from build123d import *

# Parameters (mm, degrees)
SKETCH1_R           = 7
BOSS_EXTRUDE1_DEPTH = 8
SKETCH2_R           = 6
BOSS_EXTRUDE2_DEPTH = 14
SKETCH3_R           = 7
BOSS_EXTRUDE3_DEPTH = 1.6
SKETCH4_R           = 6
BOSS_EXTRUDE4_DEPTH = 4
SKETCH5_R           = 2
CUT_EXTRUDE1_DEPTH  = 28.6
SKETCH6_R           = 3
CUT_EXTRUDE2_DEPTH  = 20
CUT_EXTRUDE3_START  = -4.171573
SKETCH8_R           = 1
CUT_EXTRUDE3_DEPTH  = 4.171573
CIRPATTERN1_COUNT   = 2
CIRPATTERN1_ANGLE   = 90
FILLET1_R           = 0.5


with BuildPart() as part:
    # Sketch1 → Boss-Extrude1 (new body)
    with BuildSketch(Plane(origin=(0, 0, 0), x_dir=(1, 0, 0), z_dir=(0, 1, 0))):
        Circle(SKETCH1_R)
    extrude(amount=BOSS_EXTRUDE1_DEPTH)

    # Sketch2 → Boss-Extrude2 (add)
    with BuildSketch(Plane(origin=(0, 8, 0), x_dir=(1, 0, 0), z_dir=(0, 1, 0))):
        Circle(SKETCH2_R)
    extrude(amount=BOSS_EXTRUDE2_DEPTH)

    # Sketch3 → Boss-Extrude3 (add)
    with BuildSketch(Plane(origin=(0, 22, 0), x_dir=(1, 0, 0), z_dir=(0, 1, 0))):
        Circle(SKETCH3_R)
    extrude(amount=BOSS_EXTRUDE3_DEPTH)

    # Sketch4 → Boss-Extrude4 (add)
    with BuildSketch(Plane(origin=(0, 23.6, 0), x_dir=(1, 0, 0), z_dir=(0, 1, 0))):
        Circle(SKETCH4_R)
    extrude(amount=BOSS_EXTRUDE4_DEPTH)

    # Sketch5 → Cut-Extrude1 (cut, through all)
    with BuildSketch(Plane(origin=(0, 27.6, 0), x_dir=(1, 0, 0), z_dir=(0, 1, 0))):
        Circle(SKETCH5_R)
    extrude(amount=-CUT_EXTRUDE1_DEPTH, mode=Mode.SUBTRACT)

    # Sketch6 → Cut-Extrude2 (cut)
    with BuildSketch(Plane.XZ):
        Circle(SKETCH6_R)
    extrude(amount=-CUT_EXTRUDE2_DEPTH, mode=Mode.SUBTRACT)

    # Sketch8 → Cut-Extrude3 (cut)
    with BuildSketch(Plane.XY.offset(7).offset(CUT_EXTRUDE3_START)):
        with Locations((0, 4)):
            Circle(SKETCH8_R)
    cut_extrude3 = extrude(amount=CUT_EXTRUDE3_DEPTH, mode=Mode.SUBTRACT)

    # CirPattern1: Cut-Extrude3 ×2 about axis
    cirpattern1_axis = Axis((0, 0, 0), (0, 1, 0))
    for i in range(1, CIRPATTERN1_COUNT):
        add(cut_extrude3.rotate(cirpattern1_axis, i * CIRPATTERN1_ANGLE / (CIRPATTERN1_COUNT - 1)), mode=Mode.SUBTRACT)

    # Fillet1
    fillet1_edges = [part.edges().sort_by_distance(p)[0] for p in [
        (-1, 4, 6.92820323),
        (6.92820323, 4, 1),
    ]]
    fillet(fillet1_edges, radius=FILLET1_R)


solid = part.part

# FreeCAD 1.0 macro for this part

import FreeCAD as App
import Part
import Sketcher
from FreeCAD import Vector


def edges_at(feature, points):
    """Names of the edges that pass closest to the given points."""
    edges = feature.Shape.Edges
    near = lambda p: min(range(len(edges)), key=lambda i: edges[i].distToShape(Part.Vertex(*p))[0])
    return sorted({f"Edge{near(p) + 1}" for p in points})

doc = App.newDocument("Part")
body = doc.addObject("PartDesign::Body", "Body")

# Sketch on XZ plane
sketch1 = body.newObject("Sketcher::SketchObject", "Sketch")
sketch1.AttachmentSupport = (doc.getObject("XZ_Plane"), [""])
sketch1.MapMode = "FlatFace"
sketch1.addGeometry(Part.Circle(Vector(0, 0, 0), Vector(0, 0, 1), 7), False)
sketch1.addConstraint(Sketcher.Constraint("Coincident", 0, 3, -1, 1))
sketch1.addConstraint(Sketcher.Constraint("Diameter", 0, 14.0))
pad1 = body.newObject("PartDesign::Pad", "Pad")
pad1.Profile = sketch1
pad1.Length = 8
pad1.Reversed = True

# Sketch on XZ plane
sketch2 = body.newObject("Sketcher::SketchObject", "Sketch001")
sketch2.AttachmentSupport = (doc.getObject("XZ_Plane"), [""])
sketch2.MapMode = "FlatFace"
sketch2.AttachmentOffset = App.Placement(Vector(0, 0, -8), App.Rotation())
sketch2.addGeometry(Part.Circle(Vector(0, 0, 0), Vector(0, 0, 1), 6), False)
sketch2.addConstraint(Sketcher.Constraint("Coincident", 0, 3, -1, 1))
sketch2.addConstraint(Sketcher.Constraint("Diameter", 0, 12.0))
pad2 = body.newObject("PartDesign::Pad", "Pad001")
pad2.Profile = sketch2
pad2.Length = 14
pad2.Reversed = True

# Sketch on XZ plane
sketch3 = body.newObject("Sketcher::SketchObject", "Sketch002")
sketch3.AttachmentSupport = (doc.getObject("XZ_Plane"), [""])
sketch3.MapMode = "FlatFace"
sketch3.AttachmentOffset = App.Placement(Vector(0, 0, -22), App.Rotation())
sketch3.addGeometry(Part.Circle(Vector(0, 0, 0), Vector(0, 0, 1), 7), False)
sketch3.addConstraint(Sketcher.Constraint("Coincident", 0, 3, -1, 1))
sketch3.addConstraint(Sketcher.Constraint("Diameter", 0, 14.0))
pad3 = body.newObject("PartDesign::Pad", "Pad002")
pad3.Profile = sketch3
pad3.Length = 1.6
pad3.Reversed = True

# Sketch on XZ plane
sketch4 = body.newObject("Sketcher::SketchObject", "Sketch003")
sketch4.AttachmentSupport = (doc.getObject("XZ_Plane"), [""])
sketch4.MapMode = "FlatFace"
sketch4.AttachmentOffset = App.Placement(Vector(0, 0, -23.6), App.Rotation())
sketch4.addGeometry(Part.Circle(Vector(0, 0, 0), Vector(0, 0, 1), 6), False)
sketch4.addConstraint(Sketcher.Constraint("Coincident", 0, 3, -1, 1))
sketch4.addConstraint(Sketcher.Constraint("Diameter", 0, 12.0))
pad4 = body.newObject("PartDesign::Pad", "Pad003")
pad4.Profile = sketch4
pad4.Length = 4
pad4.Reversed = True

# Sketch on XZ plane
sketch5 = body.newObject("Sketcher::SketchObject", "Sketch004")
sketch5.AttachmentSupport = (doc.getObject("XZ_Plane"), [""])
sketch5.MapMode = "FlatFace"
sketch5.AttachmentOffset = App.Placement(Vector(0, 0, -27.6), App.Rotation())
sketch5.addGeometry(Part.Circle(Vector(0, 0, 0), Vector(0, 0, 1), 2), False)
sketch5.addConstraint(Sketcher.Constraint("Coincident", 0, 3, -1, 1))
sketch5.addConstraint(Sketcher.Constraint("Diameter", 0, 4.0))
pocket1 = body.newObject("PartDesign::Pocket", "Pocket")
pocket1.Profile = sketch5
pocket1.Type = "ThroughAll"
pocket1.Reversed = True

# Sketch on XZ plane
sketch6 = body.newObject("Sketcher::SketchObject", "Sketch005")
sketch6.AttachmentSupport = (doc.getObject("XZ_Plane"), [""])
sketch6.MapMode = "FlatFace"
sketch6.addGeometry(Part.Circle(Vector(0, 0, 0), Vector(0, 0, 1), 3), False)
sketch6.addConstraint(Sketcher.Constraint("Coincident", 0, 3, -1, 1))
sketch6.addConstraint(Sketcher.Constraint("Diameter", 0, 6.0))
pocket2 = body.newObject("PartDesign::Pocket", "Pocket001")
pocket2.Profile = sketch6
pocket2.Length = 20

# Sketch on XY plane
sketch7 = body.newObject("Sketcher::SketchObject", "Sketch006")
sketch7.AttachmentSupport = (doc.getObject("XY_Plane"), [""])
sketch7.MapMode = "FlatFace"
sketch7.AttachmentOffset = App.Placement(Vector(0, 0, 2.828427), App.Rotation())
sketch7.addGeometry(Part.Circle(Vector(0, 4, 0), Vector(0, 0, 1), 1), False)
sketch7.addConstraint(Sketcher.Constraint("PointOnObject", 0, 3, -2))
sketch7.addConstraint(Sketcher.Constraint("Diameter", 0, 2.0))
sketch7.addConstraint(Sketcher.Constraint("DistanceY", -1, 1, 0, 3, 4.0))
pocket3 = body.newObject("PartDesign::Pocket", "Pocket002")
pocket3.Profile = sketch7
pocket3.Length = 4.171573
pocket3.Reversed = True
doc.recompute()

polarpattern = body.newObject("PartDesign::PolarPattern", "PolarPattern")
polarpattern.Originals = [pocket3]
polarpattern.Axis = (doc.getObject("Y_Axis"), [""])
polarpattern.Angle = 90
polarpattern.Occurrences = 2
body.Tip = polarpattern
doc.recompute()

fillet = body.newObject("PartDesign::Fillet", "Fillet")
fillet.Base = (polarpattern, edges_at(polarpattern, [(-1, 4, 6.928), (6.928, 4, 1)]))
fillet.Radius = 0.5

doc.recompute()
